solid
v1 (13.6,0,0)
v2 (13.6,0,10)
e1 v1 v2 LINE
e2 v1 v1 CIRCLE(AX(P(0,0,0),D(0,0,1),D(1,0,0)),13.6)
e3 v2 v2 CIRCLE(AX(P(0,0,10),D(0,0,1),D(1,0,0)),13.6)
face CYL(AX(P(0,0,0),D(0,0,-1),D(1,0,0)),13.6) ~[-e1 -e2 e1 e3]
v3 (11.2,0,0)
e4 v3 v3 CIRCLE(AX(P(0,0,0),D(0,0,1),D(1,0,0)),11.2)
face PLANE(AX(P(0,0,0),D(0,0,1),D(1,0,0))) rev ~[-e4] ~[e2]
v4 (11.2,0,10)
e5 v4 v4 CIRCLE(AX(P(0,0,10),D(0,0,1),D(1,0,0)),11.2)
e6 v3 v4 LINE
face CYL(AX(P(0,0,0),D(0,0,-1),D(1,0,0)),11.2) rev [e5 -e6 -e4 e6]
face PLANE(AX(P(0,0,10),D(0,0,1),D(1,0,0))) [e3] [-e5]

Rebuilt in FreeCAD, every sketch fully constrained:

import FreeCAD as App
import Part
import Sketcher
from FreeCAD import Vector

doc = App.newDocument("Part")
body = doc.addObject("PartDesign::Body", "Body")

sketch1 = doc.addObject("Sketcher::SketchObject", "Sketch")
body.addObject(sketch1)
sketch1.AttachmentSupport = (doc.XY_Plane, [""])
sketch1.MapMode = "FlatFace"
sketch1.addGeometry([
    Part.Circle(Vector(0, 0, 0), Vector(0, 0, 1), 14),
    Part.Circle(Vector(0, 0, 0), Vector(0, 0, 1), 11),
], False)
sketch1.addConstraint([
    Sketcher.Constraint("Coincident", 0, 3, -1, 1),
    Sketcher.Constraint("Coincident", 1, 3, -1, 1),
    Sketcher.Constraint("Diameter", 0, 27.2),
    Sketcher.Constraint("Diameter", 1, 22.4),
])
pad1 = doc.addObject("PartDesign::Pad", "Pad")
body.addObject(pad1)
pad1.Profile = sketch1
pad1.Length = 10

doc.recompute()
